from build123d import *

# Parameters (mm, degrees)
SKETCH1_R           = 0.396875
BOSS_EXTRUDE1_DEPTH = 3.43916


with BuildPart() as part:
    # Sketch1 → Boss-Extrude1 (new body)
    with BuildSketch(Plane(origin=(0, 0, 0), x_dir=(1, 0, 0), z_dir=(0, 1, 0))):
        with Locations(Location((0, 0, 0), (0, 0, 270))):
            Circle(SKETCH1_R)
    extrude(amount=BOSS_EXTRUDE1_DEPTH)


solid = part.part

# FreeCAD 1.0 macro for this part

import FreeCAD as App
import Part
import Sketcher
Q = App.Units.Quantity

doc = App.newDocument("Part")
body = doc.addObject("PartDesign::Body", "Body")

sketch1 = body.newObject("Sketcher::SketchObject", "Sketch")
sketch1.AttachmentSupport = (doc.getObject("XZ_Plane"), [""])
sketch1.MapMode = "FlatFace"
sketch1.addGeometry(Part.Circle(App.Vector(0, 0, 0), App.Vector(0, 0, 1), 0.4), False)
sketch1.addConstraint([
    Sketcher.Constraint("Coincident", 0, 3, -1, 1),
    Sketcher.Constraint("Diameter", 0, Q("0.03125 in")),
])
pad1 = body.newObject("PartDesign::Pad", "Pad")
pad1.Profile = sketch1
pad1.Length = Q("0.1354 in")
pad1.Reversed = True

doc.recompute()
